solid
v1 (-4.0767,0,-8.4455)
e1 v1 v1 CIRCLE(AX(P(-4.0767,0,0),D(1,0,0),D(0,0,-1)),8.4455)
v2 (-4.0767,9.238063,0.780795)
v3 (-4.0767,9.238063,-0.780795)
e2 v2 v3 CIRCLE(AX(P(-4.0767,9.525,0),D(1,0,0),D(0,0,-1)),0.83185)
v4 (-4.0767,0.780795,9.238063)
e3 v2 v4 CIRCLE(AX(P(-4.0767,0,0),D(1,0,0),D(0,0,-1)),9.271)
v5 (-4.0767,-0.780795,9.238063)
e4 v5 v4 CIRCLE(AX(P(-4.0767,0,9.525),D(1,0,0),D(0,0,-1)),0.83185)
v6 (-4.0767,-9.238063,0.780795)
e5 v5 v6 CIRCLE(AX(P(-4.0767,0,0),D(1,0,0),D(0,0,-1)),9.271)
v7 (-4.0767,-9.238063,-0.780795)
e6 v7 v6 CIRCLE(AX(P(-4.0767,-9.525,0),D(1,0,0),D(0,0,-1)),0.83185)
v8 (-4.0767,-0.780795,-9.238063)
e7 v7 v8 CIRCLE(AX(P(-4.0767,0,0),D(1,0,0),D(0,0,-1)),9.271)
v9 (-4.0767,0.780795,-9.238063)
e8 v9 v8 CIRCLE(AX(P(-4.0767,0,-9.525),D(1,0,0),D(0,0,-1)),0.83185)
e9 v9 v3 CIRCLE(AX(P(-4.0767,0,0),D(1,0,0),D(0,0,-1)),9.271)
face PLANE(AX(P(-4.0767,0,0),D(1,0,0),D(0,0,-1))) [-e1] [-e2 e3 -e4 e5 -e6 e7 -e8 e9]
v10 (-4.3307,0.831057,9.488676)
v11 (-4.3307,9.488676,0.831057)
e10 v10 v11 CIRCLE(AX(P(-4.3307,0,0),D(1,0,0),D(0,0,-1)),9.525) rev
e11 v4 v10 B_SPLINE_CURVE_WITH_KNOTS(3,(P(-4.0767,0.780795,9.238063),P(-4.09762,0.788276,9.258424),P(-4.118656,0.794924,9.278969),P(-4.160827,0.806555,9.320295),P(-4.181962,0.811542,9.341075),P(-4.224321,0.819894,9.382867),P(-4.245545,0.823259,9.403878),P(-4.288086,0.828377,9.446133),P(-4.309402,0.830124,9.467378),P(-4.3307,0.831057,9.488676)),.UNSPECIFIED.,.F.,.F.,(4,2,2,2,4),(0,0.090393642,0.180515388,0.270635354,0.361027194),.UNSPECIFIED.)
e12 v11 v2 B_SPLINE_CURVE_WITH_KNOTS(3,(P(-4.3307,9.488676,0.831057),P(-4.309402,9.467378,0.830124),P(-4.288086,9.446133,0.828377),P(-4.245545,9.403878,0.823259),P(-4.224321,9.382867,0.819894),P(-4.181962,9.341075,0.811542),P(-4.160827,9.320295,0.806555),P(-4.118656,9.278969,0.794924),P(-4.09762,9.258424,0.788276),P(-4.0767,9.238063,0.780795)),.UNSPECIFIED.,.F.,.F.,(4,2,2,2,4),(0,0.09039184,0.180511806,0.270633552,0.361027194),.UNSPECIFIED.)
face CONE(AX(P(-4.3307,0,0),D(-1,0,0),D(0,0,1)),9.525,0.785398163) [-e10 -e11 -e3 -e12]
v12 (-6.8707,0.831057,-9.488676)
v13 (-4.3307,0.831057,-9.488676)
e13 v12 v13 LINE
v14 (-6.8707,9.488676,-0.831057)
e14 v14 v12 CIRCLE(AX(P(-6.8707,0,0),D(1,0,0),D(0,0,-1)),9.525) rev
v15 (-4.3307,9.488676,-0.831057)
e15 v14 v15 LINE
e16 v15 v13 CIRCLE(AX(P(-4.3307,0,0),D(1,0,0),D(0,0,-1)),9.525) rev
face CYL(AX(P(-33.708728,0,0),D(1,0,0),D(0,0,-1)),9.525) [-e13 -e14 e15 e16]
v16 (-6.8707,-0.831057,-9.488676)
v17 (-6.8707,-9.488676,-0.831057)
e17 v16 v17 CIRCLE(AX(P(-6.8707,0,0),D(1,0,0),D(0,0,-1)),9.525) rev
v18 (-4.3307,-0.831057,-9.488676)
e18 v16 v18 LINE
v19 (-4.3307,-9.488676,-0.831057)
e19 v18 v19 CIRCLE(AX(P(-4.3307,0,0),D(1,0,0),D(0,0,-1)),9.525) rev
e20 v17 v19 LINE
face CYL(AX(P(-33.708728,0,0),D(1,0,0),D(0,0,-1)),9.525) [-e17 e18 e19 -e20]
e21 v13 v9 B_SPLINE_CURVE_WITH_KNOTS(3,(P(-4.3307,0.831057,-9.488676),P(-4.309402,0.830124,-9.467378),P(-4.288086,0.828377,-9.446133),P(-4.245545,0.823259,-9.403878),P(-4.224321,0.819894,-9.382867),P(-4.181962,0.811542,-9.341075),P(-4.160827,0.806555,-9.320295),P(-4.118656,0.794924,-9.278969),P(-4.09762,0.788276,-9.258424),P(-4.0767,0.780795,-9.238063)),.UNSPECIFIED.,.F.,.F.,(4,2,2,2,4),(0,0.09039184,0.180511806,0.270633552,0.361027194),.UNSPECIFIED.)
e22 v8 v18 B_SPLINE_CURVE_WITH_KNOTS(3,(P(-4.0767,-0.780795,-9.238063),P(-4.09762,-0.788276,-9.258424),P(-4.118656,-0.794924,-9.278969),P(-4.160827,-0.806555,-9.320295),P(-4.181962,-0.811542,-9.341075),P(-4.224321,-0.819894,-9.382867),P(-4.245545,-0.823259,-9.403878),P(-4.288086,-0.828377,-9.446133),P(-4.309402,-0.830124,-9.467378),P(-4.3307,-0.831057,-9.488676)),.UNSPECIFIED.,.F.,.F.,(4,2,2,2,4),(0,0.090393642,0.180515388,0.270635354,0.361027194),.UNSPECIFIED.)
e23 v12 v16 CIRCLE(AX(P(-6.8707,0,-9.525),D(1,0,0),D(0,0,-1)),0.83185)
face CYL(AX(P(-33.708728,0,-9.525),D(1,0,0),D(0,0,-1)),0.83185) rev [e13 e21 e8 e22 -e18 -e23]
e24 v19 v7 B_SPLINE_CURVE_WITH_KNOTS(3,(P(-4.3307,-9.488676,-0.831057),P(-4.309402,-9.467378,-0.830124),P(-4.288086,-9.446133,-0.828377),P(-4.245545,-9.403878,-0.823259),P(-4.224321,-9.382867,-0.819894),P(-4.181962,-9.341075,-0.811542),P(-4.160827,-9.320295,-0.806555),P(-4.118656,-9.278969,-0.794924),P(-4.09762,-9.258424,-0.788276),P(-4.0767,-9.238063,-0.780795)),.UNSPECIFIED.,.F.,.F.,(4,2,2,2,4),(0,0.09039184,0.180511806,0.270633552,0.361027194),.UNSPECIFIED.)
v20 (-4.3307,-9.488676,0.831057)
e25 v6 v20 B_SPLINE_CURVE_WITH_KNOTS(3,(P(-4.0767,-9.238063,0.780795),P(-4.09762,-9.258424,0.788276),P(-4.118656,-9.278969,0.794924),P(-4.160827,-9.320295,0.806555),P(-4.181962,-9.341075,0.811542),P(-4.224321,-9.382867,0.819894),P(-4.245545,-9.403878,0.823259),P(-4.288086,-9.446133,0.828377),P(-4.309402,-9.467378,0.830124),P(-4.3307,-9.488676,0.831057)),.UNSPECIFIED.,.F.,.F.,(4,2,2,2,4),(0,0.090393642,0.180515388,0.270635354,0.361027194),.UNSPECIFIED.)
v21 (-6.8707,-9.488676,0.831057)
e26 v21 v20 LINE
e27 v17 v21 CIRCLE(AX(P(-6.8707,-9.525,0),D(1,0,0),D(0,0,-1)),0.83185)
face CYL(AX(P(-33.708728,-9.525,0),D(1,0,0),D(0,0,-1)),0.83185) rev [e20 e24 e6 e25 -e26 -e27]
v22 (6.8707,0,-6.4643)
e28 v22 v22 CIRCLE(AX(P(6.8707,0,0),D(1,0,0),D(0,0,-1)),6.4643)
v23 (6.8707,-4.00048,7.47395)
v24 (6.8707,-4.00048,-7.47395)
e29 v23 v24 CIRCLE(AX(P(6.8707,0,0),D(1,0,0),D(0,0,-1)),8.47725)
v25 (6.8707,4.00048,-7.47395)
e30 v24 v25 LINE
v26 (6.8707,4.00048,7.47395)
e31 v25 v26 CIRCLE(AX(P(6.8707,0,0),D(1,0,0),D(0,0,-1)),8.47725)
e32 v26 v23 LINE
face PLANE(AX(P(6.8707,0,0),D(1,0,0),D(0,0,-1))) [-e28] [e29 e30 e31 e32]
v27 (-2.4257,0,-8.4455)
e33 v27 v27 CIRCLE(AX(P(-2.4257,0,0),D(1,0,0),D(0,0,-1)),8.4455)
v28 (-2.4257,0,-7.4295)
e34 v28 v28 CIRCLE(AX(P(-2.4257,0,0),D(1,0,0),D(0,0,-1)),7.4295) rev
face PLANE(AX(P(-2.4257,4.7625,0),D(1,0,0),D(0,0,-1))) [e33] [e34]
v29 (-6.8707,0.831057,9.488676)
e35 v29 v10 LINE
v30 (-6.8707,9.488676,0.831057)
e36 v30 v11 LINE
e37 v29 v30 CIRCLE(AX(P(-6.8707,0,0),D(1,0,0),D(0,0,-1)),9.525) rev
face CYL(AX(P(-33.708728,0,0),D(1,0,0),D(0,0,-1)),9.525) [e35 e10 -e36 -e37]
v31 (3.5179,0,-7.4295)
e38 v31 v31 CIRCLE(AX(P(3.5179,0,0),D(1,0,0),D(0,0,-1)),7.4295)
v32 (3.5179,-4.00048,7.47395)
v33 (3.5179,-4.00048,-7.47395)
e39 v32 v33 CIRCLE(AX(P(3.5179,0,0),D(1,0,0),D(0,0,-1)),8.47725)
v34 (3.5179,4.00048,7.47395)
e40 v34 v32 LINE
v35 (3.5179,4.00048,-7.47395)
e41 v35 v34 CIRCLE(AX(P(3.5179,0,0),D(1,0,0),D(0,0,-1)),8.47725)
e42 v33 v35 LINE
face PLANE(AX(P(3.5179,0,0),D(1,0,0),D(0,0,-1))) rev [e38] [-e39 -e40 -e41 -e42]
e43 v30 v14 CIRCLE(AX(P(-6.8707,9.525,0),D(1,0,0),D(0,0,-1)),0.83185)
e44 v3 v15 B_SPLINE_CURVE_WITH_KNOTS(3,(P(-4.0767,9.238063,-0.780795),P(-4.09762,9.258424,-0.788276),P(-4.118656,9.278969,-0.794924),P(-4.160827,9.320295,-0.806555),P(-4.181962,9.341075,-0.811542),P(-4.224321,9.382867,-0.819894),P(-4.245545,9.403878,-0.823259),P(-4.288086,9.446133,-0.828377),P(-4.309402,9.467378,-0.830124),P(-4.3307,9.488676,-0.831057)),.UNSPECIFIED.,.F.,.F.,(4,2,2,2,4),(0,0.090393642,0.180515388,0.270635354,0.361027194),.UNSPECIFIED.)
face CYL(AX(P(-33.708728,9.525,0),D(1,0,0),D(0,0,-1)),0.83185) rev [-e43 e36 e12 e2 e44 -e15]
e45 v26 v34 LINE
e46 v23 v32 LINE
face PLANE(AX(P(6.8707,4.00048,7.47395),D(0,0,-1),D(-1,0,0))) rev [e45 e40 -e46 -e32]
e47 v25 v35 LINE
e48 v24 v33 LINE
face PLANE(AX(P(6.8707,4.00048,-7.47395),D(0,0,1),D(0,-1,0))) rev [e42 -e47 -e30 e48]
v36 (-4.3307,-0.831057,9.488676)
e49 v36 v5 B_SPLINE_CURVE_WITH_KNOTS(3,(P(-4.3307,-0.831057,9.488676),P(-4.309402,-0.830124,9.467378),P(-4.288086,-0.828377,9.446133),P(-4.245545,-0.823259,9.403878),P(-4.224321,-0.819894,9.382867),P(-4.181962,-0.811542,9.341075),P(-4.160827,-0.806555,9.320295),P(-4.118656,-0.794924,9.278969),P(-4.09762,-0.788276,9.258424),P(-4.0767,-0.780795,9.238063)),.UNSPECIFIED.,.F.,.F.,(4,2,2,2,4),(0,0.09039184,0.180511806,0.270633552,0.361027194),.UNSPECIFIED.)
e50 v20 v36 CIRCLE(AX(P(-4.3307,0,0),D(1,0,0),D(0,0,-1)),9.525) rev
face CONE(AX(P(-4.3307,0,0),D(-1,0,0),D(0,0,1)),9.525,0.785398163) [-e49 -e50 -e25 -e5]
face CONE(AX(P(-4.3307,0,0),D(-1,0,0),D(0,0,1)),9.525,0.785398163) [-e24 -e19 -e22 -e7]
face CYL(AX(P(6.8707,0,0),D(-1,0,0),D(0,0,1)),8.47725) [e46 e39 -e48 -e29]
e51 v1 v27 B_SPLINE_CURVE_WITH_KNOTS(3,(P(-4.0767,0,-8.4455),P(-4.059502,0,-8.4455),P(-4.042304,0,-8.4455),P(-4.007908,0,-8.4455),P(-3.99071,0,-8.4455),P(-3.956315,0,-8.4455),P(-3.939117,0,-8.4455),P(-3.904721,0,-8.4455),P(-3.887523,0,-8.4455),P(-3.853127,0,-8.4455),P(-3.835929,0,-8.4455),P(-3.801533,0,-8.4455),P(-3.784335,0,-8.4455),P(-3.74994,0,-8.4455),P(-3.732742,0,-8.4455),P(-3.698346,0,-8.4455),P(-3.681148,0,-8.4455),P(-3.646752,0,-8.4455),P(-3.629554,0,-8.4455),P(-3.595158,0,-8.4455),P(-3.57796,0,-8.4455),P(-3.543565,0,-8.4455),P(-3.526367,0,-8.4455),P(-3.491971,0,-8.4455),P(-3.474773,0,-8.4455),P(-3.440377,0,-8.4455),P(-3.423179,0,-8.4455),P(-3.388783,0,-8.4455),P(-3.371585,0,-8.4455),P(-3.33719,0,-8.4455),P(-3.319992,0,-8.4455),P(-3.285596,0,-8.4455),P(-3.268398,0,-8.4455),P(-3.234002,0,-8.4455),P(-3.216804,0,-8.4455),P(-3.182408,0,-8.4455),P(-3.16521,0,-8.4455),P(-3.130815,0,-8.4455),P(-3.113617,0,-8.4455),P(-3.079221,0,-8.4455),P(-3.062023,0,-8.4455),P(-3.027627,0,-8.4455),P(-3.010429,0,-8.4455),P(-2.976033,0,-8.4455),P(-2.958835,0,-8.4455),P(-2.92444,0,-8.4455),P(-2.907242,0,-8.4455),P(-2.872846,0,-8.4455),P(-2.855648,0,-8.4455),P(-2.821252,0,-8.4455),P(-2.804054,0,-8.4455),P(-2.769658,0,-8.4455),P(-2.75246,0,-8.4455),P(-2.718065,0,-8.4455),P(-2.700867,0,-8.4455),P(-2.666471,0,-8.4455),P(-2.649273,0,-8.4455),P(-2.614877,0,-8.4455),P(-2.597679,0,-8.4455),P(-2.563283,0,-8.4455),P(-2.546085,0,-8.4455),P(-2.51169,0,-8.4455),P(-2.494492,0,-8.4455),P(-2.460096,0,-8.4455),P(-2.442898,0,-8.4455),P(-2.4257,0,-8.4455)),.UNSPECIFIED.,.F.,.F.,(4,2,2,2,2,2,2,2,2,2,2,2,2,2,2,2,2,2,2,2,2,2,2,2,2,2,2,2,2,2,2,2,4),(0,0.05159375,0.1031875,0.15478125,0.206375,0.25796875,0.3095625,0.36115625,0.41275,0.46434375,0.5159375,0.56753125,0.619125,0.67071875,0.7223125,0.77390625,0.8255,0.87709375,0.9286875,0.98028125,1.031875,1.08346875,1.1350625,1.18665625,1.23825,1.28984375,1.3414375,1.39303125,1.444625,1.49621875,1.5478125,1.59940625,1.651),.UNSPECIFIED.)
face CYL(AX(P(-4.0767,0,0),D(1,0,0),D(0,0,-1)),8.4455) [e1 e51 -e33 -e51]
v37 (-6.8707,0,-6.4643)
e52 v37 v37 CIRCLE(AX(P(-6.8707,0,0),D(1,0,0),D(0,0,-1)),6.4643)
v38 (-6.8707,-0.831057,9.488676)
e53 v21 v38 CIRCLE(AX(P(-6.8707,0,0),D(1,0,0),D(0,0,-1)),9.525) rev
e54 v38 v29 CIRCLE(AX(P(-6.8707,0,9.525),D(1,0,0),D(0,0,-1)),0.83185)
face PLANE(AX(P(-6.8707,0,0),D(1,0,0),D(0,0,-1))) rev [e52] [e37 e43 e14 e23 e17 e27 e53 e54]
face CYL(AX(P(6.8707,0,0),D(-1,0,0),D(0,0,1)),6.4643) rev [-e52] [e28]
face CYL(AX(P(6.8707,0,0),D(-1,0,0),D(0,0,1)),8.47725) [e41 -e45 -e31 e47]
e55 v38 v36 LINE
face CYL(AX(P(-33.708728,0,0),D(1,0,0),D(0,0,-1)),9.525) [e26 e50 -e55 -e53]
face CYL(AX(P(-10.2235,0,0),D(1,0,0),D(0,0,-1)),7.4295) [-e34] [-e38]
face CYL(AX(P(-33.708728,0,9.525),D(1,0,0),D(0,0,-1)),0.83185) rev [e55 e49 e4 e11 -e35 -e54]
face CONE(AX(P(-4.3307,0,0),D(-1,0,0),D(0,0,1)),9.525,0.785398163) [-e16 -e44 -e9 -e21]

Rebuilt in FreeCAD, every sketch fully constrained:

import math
import FreeCAD as App
import Part
import Sketcher

V = App.Vector
Q = App.Units.Quantity


def edges_at(feature, points):
    """Names of the edges that pass closest to the given points."""
    edges = feature.Shape.Edges
    near = lambda p: min(range(len(edges)), key=lambda i: edges[i].distToShape(Part.Vertex(*p))[0])
    return sorted({f"Edge{near(p) + 1}" for p in points})

doc = App.newDocument("Part")
params = doc.addObject("Spreadsheet::Sheet", "Params")
for row, (alias, value) in enumerate([
    ("sketch1_diameter", "0.509 in"),
    ("pad1_length", "0.541 in"),
    ("sketch2_diameter", "0.585 in"),
    ("pocket1_length", "0.541 in"),
    ("sketch3_diameter", "0.509 in"),
    ("sketch3_radius", "0.375 in"),
    ("pad2_length", "0.175 in"),
    ("sketch4_diameter", "0.665 in"),
    ("pocket2_length", "0.065 in"),
    ("chamfer_size", "0.01 in"),
], start=1):
    params.set(f"A{row}", alias)
    params.set(f"B{row}", "=" + value)
    params.setAlias(f"B{row}", alias)

body = doc.addObject("PartDesign::Body", "Body")

# Sketch on YZ plane
sketch1 = body.newObject("Sketcher::SketchObject", "Sketch")
sketch1.AttachmentSupport = (doc.getObject("YZ_Plane"), [""])
sketch1.MapMode = "FlatFace"
sketch1.addGeometry([
    Part.LineSegment(V(4.00048, 7.47395, 0), V(-4.00048, 7.47395, 0)),  # 0
    Part.ArcOfCircle(Part.Circle(V(0, 0, 0), V(0, 0, 1), 8.47725), math.radians(118.158203), math.radians(241.841797)),  # 1
    Part.LineSegment(V(-4.00048, -7.47395, 0), V(4.00048, -7.47395, 0)),  # 2
    Part.ArcOfCircle(Part.Circle(V(0, 0, 0), V(0, 0, 1), 8.47725), math.radians(-61.841797), math.radians(61.841797)),  # 3
    Part.Circle(V(0, 0, 0), V(0, 0, 1), 6.4643),  # 4
], False)
sketch1.addConstraint([
    Sketcher.Constraint("Coincident", 0, 2, 1, 1),
    Sketcher.Constraint("Coincident", 1, 2, 2, 1),
    Sketcher.Constraint("Coincident", 2, 2, 3, 1),
    Sketcher.Constraint("Coincident", 3, 2, 0, 1),
    Sketcher.Constraint("Horizontal", 0),
    Sketcher.Constraint("Horizontal", 2),
    Sketcher.Constraint("Coincident", 1, 3, -1, 1),
    Sketcher.Constraint("Coincident", 3, 3, -1, 1),
    Sketcher.Constraint("Coincident", 4, 3, -1, 1),
    Sketcher.Constraint("Equal", 1, 3),
    Sketcher.Constraint("Vertical", 0, 2, 1, 2),
    Sketcher.Constraint("Diameter", 4, Q("0.509 in")),
    Sketcher.Constraint("Radius", 1, 8.47725),
    Sketcher.Constraint("DistanceY", 1, 2, 0, 2, Q("0.5885 in")),
])
sketch1.setExpression("Constraints[11]", "Params.sketch1_diameter")
pad1 = body.newObject("PartDesign::Pad", "Pad")
pad1.Profile = sketch1
pad1.setExpression("Length", "Params.pad1_length")
pad1.Midplane = True

# Sketch on YZ plane
sketch2 = body.newObject("Sketcher::SketchObject", "Sketch001")
sketch2.AttachmentSupport = (doc.getObject("YZ_Plane"), [""])
sketch2.MapMode = "FlatFace"
sketch2.AttachmentOffset = App.Placement(V(0, 0, 0.1385 * 25.4), App.Rotation())
sketch2.addGeometry([
    Part.Circle(V(0, 0, 0), V(0, 0, 1), 12.068907),
    Part.Circle(V(0, 0, 0), V(0, 0, 1), 7.4295),
], False)
sketch2.addConstraint([
    Sketcher.Constraint("Coincident", 0, 3, -1, 1),
    Sketcher.Constraint("Coincident", 1, 3, -1, 1),
    Sketcher.Constraint("Diameter", 1, Q("0.585 in")),
    Sketcher.Constraint("Diameter", 0, 24.137814),
])
sketch2.setExpression("Constraints[2]", "Params.sketch2_diameter")
pocket1 = body.newObject("PartDesign::Pocket", "Pocket")
pocket1.Profile = sketch2
pocket1.setExpression("Length", "Params.pocket1_length")

# Sketch on YZ plane
sketch3 = body.newObject("Sketcher::SketchObject", "Sketch002")
sketch3.AttachmentSupport = (doc.getObject("YZ_Plane"), [""])
sketch3.MapMode = "FlatFace"
sketch3.AttachmentOffset = App.Placement(V(0, 0, -0.2705 * 25.4), App.Rotation())
sketch3.addGeometry([
    Part.ArcOfCircle(Part.Circle(V(0, 0, 0), V(0, 0, 1), 9.525), math.radians(5.005423), math.radians(84.994577)),  # 0
    Part.ArcOfCircle(Part.Circle(V(0, 9.525, 0), V(0, 0, 1), 0.83185), math.radians(-177.497288), math.radians(-2.502712)),  # 1
    Part.ArcOfCircle(Part.Circle(V(0, 0, 0), V(0, 0, 1), 9.525), math.radians(95.005423), math.radians(174.994577)),  # 2
    Part.ArcOfCircle(Part.Circle(V(-9.525, 0, 0), V(0, 0, 1), 0.83185), math.radians(-87.497288), math.radians(87.497288)),  # 3
    Part.ArcOfCircle(Part.Circle(V(0, 0, 0), V(0, 0, 1), 9.525), math.radians(-174.994577), math.radians(-95.005423)),  # 4
    Part.ArcOfCircle(Part.Circle(V(0, -9.525, 0), V(0, 0, 1), 0.83185), math.radians(2.502712), math.radians(177.497288)),  # 5
    Part.ArcOfCircle(Part.Circle(V(0, 0, 0), V(0, 0, 1), 9.525), math.radians(-84.994577), math.radians(-5.005423)),  # 6
    Part.ArcOfCircle(Part.Circle(V(9.525, 0, 0), V(0, 0, 1), 0.83185), math.radians(92.502712), math.radians(267.497288)),  # 7
    Part.Circle(V(0, 0, 0), V(0, 0, 1), 6.4643),  # 8
], False)
sketch3.addConstraint([
    Sketcher.Constraint("Coincident", 0, 2, 1, 2),
    Sketcher.Constraint("Coincident", 1, 1, 2, 1),
    Sketcher.Constraint("Coincident", 2, 2, 3, 2),
    Sketcher.Constraint("Coincident", 3, 1, 4, 1),
    Sketcher.Constraint("Coincident", 4, 2, 5, 2),
    Sketcher.Constraint("Coincident", 5, 1, 6, 1),
    Sketcher.Constraint("Coincident", 6, 2, 7, 2),
    Sketcher.Constraint("Coincident", 7, 1, 0, 1),
    Sketcher.Constraint("Coincident", 0, 3, -1, 1),
    Sketcher.Constraint("Coincident", 2, 3, -1, 1),
    Sketcher.Constraint("Coincident", 4, 3, -1, 1),
    Sketcher.Constraint("Coincident", 6, 3, -1, 1),
    Sketcher.Constraint("Coincident", 8, 3, -1, 1),
    Sketcher.Constraint("Equal", 0, 2),
    Sketcher.Constraint("Equal", 1, 3),
    Sketcher.Constraint("Equal", 2, 4),
    Sketcher.Constraint("Equal", 3, 5),
    Sketcher.Constraint("Equal", 4, 6),
    Sketcher.Constraint("Equal", 5, 7),
    Sketcher.Constraint("Symmetric", 1, 3, 5, 3, -1, 1),
    Sketcher.Constraint("Symmetric", 3, 3, 7, 3, -1, 1),
    Sketcher.Constraint("PointOnObject", 1, 3, -2),
    Sketcher.Constraint("PointOnObject", 3, 3, -1),
    Sketcher.Constraint("Diameter", 8, Q("0.509 in")),
    Sketcher.Constraint("Radius", 0, Q("0.375 in")),
    Sketcher.Constraint("DistanceY", 5, 3, 1, 3, Q("0.75 in")),
    Sketcher.Constraint("DistanceX", 3, 3, -1, 1, Q("0.375 in")),
    Sketcher.Constraint("Radius", 1, 0.83185),
])
sketch3.setExpression("Constraints[23]", "Params.sketch3_diameter")
sketch3.setExpression("Constraints[24]", "Params.sketch3_radius")
pad2 = body.newObject("PartDesign::Pad", "Pad001")
pad2.Profile = sketch3
pad2.setExpression("Length", "Params.pad2_length")

# Sketch on YZ plane
sketch4 = body.newObject("Sketcher::SketchObject", "Sketch003")
sketch4.AttachmentSupport = (doc.getObject("YZ_Plane"), [""])
sketch4.MapMode = "FlatFace"
sketch4.AttachmentOffset = App.Placement(V(0, 0, -0.0955 * 25.4), App.Rotation())
sketch4.addGeometry([
    Part.Circle(V(0, 0, 0), V(0, 0, 1), 13.191666),
    Part.Circle(V(0, 0, 0), V(0, 0, 1), 8.4455),
], False)
sketch4.addConstraint([
    Sketcher.Constraint("Coincident", 0, 3, -1, 1),
    Sketcher.Constraint("Coincident", 1, 3, -1, 1),
    Sketcher.Constraint("Diameter", 1, Q("0.665 in")),
    Sketcher.Constraint("Diameter", 0, 26.383332),
])
sketch4.setExpression("Constraints[2]", "Params.sketch4_diameter")
pocket2 = body.newObject("PartDesign::Pocket", "Pocket001")
pocket2.Profile = sketch4
pocket2.setExpression("Length", "Params.pocket2_length")
doc.recompute()

chamfer = body.newObject("PartDesign::Chamfer", "Chamfer")
chamfer.Base = (pocket2, edges_at(pocket2, [
    (-4.077, 6.735, -6.735),
    (-4.077, 6.735, 6.735),
    (-4.077, -6.735, -6.735),
    (-4.077, -6.735, 6.735),
]))
chamfer.setExpression("Size", "Params.chamfer_size")

doc.recompute()
